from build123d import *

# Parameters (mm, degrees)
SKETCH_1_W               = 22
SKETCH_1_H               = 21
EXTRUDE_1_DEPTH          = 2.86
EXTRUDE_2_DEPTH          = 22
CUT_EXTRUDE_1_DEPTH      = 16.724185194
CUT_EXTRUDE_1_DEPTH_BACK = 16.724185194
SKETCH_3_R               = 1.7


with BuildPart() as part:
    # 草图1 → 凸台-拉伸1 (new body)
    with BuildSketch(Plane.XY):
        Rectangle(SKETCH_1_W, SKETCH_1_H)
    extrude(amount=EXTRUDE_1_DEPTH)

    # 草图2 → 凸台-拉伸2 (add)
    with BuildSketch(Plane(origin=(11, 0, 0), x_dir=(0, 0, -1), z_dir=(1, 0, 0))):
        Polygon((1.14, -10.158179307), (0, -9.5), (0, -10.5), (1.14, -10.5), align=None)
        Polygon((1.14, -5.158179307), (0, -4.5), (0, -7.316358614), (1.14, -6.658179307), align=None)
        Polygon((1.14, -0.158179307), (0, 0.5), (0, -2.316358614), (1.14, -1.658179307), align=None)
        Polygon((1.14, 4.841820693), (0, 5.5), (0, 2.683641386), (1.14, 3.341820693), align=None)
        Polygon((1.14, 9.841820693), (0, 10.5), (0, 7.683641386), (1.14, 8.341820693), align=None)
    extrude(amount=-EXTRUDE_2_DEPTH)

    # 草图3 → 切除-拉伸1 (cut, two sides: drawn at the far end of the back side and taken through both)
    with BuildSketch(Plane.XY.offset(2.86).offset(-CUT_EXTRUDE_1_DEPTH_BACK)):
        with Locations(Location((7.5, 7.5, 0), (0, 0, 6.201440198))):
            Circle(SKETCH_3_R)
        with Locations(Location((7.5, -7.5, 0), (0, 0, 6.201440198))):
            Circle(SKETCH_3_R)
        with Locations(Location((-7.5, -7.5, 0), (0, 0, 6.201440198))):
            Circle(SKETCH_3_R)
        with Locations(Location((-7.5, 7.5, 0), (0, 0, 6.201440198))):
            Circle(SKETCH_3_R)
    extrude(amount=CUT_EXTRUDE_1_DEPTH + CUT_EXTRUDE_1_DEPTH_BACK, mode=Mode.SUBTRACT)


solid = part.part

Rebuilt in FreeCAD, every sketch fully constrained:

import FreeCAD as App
import Part
import Sketcher
Q = App.Units.Quantity

doc = App.newDocument("Part")
params = doc.addObject("Spreadsheet::Sheet", "Params")
for row, (alias, value) in enumerate([
    ("sketch1_width", "22 mm"),
    ("sketch1_height", "21 mm"),
    ("pad1_length", "2.86 mm"),
    ("sketch2_width", "1 mm"),
    ("sketch2_width2", "1.5 mm"),
    ("sketch2_height", "1.14 mm"),
    ("pad2_length", "22 mm"),
    ("sketch3_diameter", "3.4 mm"),
], start=1):
    params.set(f"A{row}", alias)
    params.set(f"B{row}", "=" + value)
    params.setAlias(f"B{row}", alias)

body = doc.addObject("PartDesign::Body", "Body")

# Sketch on XY plane
sketch1 = body.newObject("Sketcher::SketchObject", "Sketch")
sketch1.AttachmentSupport = (doc.getObject("XY_Plane"), [""])
sketch1.MapMode = "FlatFace"
sketch1.addGeometry([
    Part.LineSegment(App.Vector(-11, 10.5, 0), App.Vector(-11, -10.5, 0)),
    Part.LineSegment(App.Vector(-11, -10.5, 0), App.Vector(11, -10.5, 0)),
    Part.LineSegment(App.Vector(11, -10.5, 0), App.Vector(11, 10.5, 0)),
    Part.LineSegment(App.Vector(11, 10.5, 0), App.Vector(-11, 10.5, 0)),
], False)
sketch1.addConstraint([
    Sketcher.Constraint("Coincident", 0, 2, 1, 1),
    Sketcher.Constraint("Coincident", 1, 2, 2, 1),
    Sketcher.Constraint("Coincident", 2, 2, 3, 1),
    Sketcher.Constraint("Coincident", 3, 2, 0, 1),
    Sketcher.Constraint("Vertical", 0),
    Sketcher.Constraint("Horizontal", 1),
    Sketcher.Constraint("Vertical", 2),
    Sketcher.Constraint("Horizontal", 3),
    Sketcher.Constraint("Symmetric", 0, 2, 2, 2, -1, 1),
    Sketcher.Constraint("DistanceX", 1, 1, 1, 2, 22.0),
    Sketcher.Constraint("DistanceY", 0, 2, 0, 1, 21.0),
])
sketch1.setExpression("Constraints[9]", "Params.sketch1_width")
sketch1.setExpression("Constraints[10]", "Params.sketch1_height")
pad1 = body.newObject("PartDesign::Pad", "Pad")
pad1.Profile = sketch1
pad1.setExpression("Length", "Params.pad1_length")

# Sketch on YZ plane
sketch2 = body.newObject("Sketcher::SketchObject", "Sketch001")
sketch2.AttachmentSupport = (doc.getObject("YZ_Plane"), [""])
sketch2.MapMode = "FlatFace"
sketch2.AttachmentOffset = App.Placement(App.Vector(0, 0, 11), App.Rotation())
sketch2.addGeometry([
    Part.LineSegment(App.Vector(-10.158179, -1.14, 0), App.Vector(-9.5, 0, 0)),  # 0
    Part.LineSegment(App.Vector(-9.5, 0, 0), App.Vector(-10.5, 0, 0)),  # 1
    Part.LineSegment(App.Vector(-10.5, 0, 0), App.Vector(-10.5, -1.14, 0)),  # 2
    Part.LineSegment(App.Vector(-10.5, -1.14, 0), App.Vector(-10.158179, -1.14, 0)),  # 3
    Part.LineSegment(App.Vector(-5.158179, -1.14, 0), App.Vector(-4.5, 0, 0)),  # 4
    Part.LineSegment(App.Vector(-4.5, 0, 0), App.Vector(-7.316359, 0, 0)),  # 5
    Part.LineSegment(App.Vector(-7.316359, 0, 0), App.Vector(-6.658179, -1.14, 0)),  # 6
    Part.LineSegment(App.Vector(-6.658179, -1.14, 0), App.Vector(-5.158179, -1.14, 0)),  # 7
    Part.LineSegment(App.Vector(-0.158179, -1.14, 0), App.Vector(0.5, 0, 0)),  # 8
    Part.LineSegment(App.Vector(0.5, 0, 0), App.Vector(-2.316359, 0, 0)),  # 9
    Part.LineSegment(App.Vector(-2.316359, 0, 0), App.Vector(-1.658179, -1.14, 0)),  # 10
    Part.LineSegment(App.Vector(-1.658179, -1.14, 0), App.Vector(-0.158179, -1.14, 0)),  # 11
    Part.LineSegment(App.Vector(4.841821, -1.14, 0), App.Vector(5.5, 0, 0)),  # 12
    Part.LineSegment(App.Vector(5.5, 0, 0), App.Vector(2.683641, 0, 0)),  # 13
    Part.LineSegment(App.Vector(2.683641, 0, 0), App.Vector(3.341821, -1.14, 0)),  # 14
    Part.LineSegment(App.Vector(3.341821, -1.14, 0), App.Vector(4.841821, -1.14, 0)),  # 15
    Part.LineSegment(App.Vector(9.841821, -1.14, 0), App.Vector(10.5, 0, 0)),  # 16
    Part.LineSegment(App.Vector(10.5, 0, 0), App.Vector(7.683641, 0, 0)),  # 17
    Part.LineSegment(App.Vector(7.683641, 0, 0), App.Vector(8.341821, -1.14, 0)),  # 18
    Part.LineSegment(App.Vector(8.341821, -1.14, 0), App.Vector(9.841821, -1.14, 0)),  # 19
], False)
sketch2.addConstraint([
    Sketcher.Constraint("Coincident", 0, 2, 1, 1),
    Sketcher.Constraint("Coincident", 1, 2, 2, 1),
    Sketcher.Constraint("Coincident", 2, 2, 3, 1),
    Sketcher.Constraint("Coincident", 3, 2, 0, 1),
    Sketcher.Constraint("Coincident", 4, 2, 5, 1),
    Sketcher.Constraint("Coincident", 5, 2, 6, 1),
    Sketcher.Constraint("Coincident", 6, 2, 7, 1),
    Sketcher.Constraint("Coincident", 7, 2, 4, 1),
    Sketcher.Constraint("Coincident", 8, 2, 9, 1),
    Sketcher.Constraint("Coincident", 9, 2, 10, 1),
    Sketcher.Constraint("Coincident", 10, 2, 11, 1),
    Sketcher.Constraint("Coincident", 11, 2, 8, 1),
    Sketcher.Constraint("Coincident", 12, 2, 13, 1),
    Sketcher.Constraint("Coincident", 13, 2, 14, 1),
    Sketcher.Constraint("Coincident", 14, 2, 15, 1),
    Sketcher.Constraint("Coincident", 15, 2, 12, 1),
    Sketcher.Constraint("Coincident", 16, 2, 17, 1),
    Sketcher.Constraint("Coincident", 17, 2, 18, 1),
    Sketcher.Constraint("Coincident", 18, 2, 19, 1),
    Sketcher.Constraint("Coincident", 19, 2, 16, 1),
    Sketcher.Constraint("Horizontal", 1),
    Sketcher.Constraint("Vertical", 2),
    Sketcher.Constraint("Horizontal", 3),
    Sketcher.Constraint("Horizontal", 5),
    Sketcher.Constraint("Horizontal", 7),
    Sketcher.Constraint("Horizontal", 9),
    Sketcher.Constraint("Horizontal", 11),
    Sketcher.Constraint("Horizontal", 13),
    Sketcher.Constraint("Horizontal", 15),
    Sketcher.Constraint("Horizontal", 17),
    Sketcher.Constraint("Horizontal", 19),
    Sketcher.Constraint("Symmetric", 1, 2, 16, 2, -1, 1),
    Sketcher.Constraint("PointOnObject", 0, 2, -1),
    Sketcher.Constraint("PointOnObject", 4, 2, -1),
    Sketcher.Constraint("PointOnObject", 8, 2, -1),
    Sketcher.Constraint("PointOnObject", 12, 2, -1),
    Sketcher.Constraint("Parallel", 0, 4),
    Sketcher.Constraint("Parallel", 4, 8),
    Sketcher.Constraint("Parallel", 6, 10),
    Sketcher.Constraint("Parallel", 8, 12),
    Sketcher.Constraint("Parallel", 10, 14),
    Sketcher.Constraint("Parallel", 12, 16),
    Sketcher.Constraint("Parallel", 14, 18),
    Sketcher.Constraint("Horizontal", 3, 2, 6, 2),
    Sketcher.Constraint("Horizontal", 7, 2, 10, 2),
    Sketcher.Constraint("Horizontal", 11, 2, 14, 2),
    Sketcher.Constraint("Horizontal", 15, 2, 18, 2),
    Sketcher.Constraint("Equal", 5, 9),
    Sketcher.Constraint("Equal", 9, 13),
    Sketcher.Constraint("Equal", 13, 17),
    Sketcher.Constraint("Equal", 4, 6),
    Sketcher.Constraint("DistanceX", 1, 2, 1, 1, 1.0),
    Sketcher.Constraint("Angle", 0, Q("60 deg")),
    Sketcher.Constraint("DistanceX", 7, 1, 7, 2, 1.5),
    Sketcher.Constraint("DistanceX", 0, 2, 4, 2, 5.0),
    Sketcher.Constraint("DistanceX", 4, 2, 8, 2, 5.0),
    Sketcher.Constraint("DistanceX", 8, 2, 12, 2, 5.0),
    Sketcher.Constraint("DistanceX", 12, 2, 16, 2, 5.0),
    Sketcher.Constraint("DistanceY", 2, 2, 2, 1, 1.14),
])
sketch2.setExpression("Constraints[51]", "Params.sketch2_width")
sketch2.setExpression("Constraints[53]", "Params.sketch2_width2")
sketch2.setExpression("Constraints[58]", "Params.sketch2_height")
pad2 = body.newObject("PartDesign::Pad", "Pad001")
pad2.Profile = sketch2
pad2.setExpression("Length", "Params.pad2_length")
pad2.Reversed = True

# Sketch on XY plane
sketch3 = body.newObject("Sketcher::SketchObject", "Sketch002")
sketch3.AttachmentSupport = (doc.getObject("XY_Plane"), [""])
sketch3.MapMode = "FlatFace"
sketch3.AttachmentOffset = App.Placement(App.Vector(0, 0, 2.86), App.Rotation())
sketch3.addGeometry([
    Part.Circle(App.Vector(7.5, 7.5, 0), App.Vector(0, 0, 1), 1.7),
    Part.Circle(App.Vector(7.5, -7.5, 0), App.Vector(0, 0, 1), 1.7),
    Part.Circle(App.Vector(-7.5, -7.5, 0), App.Vector(0, 0, 1), 1.7),
    Part.Circle(App.Vector(-7.5, 7.5, 0), App.Vector(0, 0, 1), 1.7),
], False)
sketch3.addConstraint([
    Sketcher.Constraint("Equal", 0, 1),
    Sketcher.Constraint("Equal", 1, 2),
    Sketcher.Constraint("Equal", 2, 3),
    Sketcher.Constraint("Symmetric", 0, 3, 2, 3, -1, 1),
    Sketcher.Constraint("Symmetric", 1, 3, 3, 3, -1, 1),
    Sketcher.Constraint("Symmetric", 1, 3, 2, 3, -2),
    Sketcher.Constraint("Diameter", 0, 3.4),
    Sketcher.Constraint("DistanceY", 1, 3, 0, 3, 15.0),
    Sketcher.Constraint("DistanceX", 2, 3, 1, 3, 15.0),
])
sketch3.setExpression("Constraints[6]", "Params.sketch3_diameter")
pocket1 = body.newObject("PartDesign::Pocket", "Pocket")
pocket1.Profile = sketch3
pocket1.Type = "ThroughAll"
pocket1.Midplane = True

doc.recompute()
